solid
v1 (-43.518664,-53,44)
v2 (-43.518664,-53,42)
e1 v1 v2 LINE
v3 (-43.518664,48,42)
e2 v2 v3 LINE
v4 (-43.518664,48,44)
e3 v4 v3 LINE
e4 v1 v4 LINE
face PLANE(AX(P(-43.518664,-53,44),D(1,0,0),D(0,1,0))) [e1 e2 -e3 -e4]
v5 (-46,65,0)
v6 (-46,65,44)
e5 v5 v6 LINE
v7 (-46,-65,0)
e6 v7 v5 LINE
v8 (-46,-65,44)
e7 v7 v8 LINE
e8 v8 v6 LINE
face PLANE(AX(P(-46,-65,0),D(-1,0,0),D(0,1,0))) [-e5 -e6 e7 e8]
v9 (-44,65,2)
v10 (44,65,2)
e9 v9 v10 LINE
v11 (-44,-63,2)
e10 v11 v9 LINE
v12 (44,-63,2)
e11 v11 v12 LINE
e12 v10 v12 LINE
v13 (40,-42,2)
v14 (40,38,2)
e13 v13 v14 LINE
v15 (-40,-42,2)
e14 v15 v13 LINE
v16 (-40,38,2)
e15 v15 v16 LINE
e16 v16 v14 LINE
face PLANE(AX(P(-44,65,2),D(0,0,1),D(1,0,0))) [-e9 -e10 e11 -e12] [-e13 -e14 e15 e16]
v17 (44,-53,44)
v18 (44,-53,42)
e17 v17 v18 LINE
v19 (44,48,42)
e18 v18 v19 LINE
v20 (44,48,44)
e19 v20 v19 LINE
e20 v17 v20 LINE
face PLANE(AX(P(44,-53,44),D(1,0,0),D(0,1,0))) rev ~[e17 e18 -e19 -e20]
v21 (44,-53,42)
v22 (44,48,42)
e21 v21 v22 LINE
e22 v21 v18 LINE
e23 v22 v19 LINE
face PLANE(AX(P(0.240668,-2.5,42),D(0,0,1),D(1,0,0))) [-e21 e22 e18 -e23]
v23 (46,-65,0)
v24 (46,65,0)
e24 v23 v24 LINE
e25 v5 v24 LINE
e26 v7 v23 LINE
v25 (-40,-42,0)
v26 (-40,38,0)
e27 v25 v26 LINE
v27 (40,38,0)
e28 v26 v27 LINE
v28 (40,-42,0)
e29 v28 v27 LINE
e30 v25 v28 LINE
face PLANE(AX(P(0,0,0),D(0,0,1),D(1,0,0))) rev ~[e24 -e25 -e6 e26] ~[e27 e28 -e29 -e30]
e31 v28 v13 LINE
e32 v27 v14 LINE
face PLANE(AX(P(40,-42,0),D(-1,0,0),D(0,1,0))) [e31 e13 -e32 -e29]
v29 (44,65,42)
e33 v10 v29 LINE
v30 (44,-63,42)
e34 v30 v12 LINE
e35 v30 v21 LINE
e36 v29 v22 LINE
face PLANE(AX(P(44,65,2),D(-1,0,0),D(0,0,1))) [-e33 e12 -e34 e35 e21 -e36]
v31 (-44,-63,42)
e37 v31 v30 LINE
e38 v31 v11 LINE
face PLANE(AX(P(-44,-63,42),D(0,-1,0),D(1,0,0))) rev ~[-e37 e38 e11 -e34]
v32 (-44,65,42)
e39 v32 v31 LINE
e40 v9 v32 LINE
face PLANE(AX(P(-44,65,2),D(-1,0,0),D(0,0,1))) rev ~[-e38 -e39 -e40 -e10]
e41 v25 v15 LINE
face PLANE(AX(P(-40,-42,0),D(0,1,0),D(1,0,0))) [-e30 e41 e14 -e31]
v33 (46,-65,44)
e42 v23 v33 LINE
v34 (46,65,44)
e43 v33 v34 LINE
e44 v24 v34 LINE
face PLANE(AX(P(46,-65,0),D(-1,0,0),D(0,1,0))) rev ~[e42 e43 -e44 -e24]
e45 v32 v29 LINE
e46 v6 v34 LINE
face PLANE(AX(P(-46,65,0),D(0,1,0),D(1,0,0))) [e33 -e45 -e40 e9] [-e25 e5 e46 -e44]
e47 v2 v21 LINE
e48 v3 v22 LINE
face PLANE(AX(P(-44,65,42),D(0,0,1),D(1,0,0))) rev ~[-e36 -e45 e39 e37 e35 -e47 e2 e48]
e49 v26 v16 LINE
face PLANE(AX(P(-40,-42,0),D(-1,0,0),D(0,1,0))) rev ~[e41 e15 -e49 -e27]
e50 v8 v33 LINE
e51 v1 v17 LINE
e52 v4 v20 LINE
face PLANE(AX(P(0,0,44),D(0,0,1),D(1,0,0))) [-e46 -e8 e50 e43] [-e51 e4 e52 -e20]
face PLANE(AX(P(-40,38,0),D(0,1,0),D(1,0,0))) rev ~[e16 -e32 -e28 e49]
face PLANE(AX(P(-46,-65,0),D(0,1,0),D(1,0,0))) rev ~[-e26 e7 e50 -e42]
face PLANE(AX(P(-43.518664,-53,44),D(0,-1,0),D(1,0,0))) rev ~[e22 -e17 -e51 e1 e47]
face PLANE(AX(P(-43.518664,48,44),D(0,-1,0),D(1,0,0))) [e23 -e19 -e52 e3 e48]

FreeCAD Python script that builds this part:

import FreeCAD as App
import Part
import Sketcher
from FreeCAD import Vector
Q = App.Units.Quantity

doc = App.newDocument("Part")
body = doc.addObject("PartDesign::Body", "Body")

sketch1 = body.newObject("Sketcher::SketchObject", "Sketch")
sketch1.AttachmentSupport = (doc.getObject("XY_Plane"), [""])
sketch1.MapMode = "FlatFace"
sketch1.addGeometry(Part.LineSegment(Vector(-46, 65, 0), Vector(-46, -65, 0)), False)
sketch1.addGeometry(Part.LineSegment(Vector(-46, -65, 0), Vector(46, -65, 0)), False)
sketch1.addGeometry(Part.LineSegment(Vector(46, -65, 0), Vector(46, 65, 0)), False)
sketch1.addGeometry(Part.LineSegment(Vector(46, 65, 0), Vector(-46, 65, 0)), False)
sketch1.addConstraint(Sketcher.Constraint("Coincident", 0, 2, 1, 1))
sketch1.addConstraint(Sketcher.Constraint("Coincident", 1, 2, 2, 1))
sketch1.addConstraint(Sketcher.Constraint("Coincident", 2, 2, 3, 1))
sketch1.addConstraint(Sketcher.Constraint("Coincident", 3, 2, 0, 1))
sketch1.addConstraint(Sketcher.Constraint("Vertical", 0))
sketch1.addConstraint(Sketcher.Constraint("Horizontal", 1))
sketch1.addConstraint(Sketcher.Constraint("Vertical", 2))
sketch1.addConstraint(Sketcher.Constraint("Horizontal", 3))
sketch1.addConstraint(Sketcher.Constraint("Symmetric", 0, 2, 2, 2, -1, 1))
sketch1.addConstraint(Sketcher.Constraint("DistanceX", 1, 1, 1, 2, Q("92 mm")))
sketch1.addConstraint(Sketcher.Constraint("DistanceY", 0, 2, 0, 1, Q("130 mm")))
pad1 = body.newObject("PartDesign::Pad", "Pad")
pad1.Profile = sketch1
pad1.Length = 44

sketch2 = body.newObject("Sketcher::SketchObject", "Sketch001")
sketch2.AttachmentSupport = (doc.getObject("XY_Plane"), [""])
sketch2.MapMode = "FlatFace"
sketch2.AttachmentOffset = App.Placement(Vector(0, 0, 42), App.Rotation())
sketch2.addGeometry(Part.LineSegment(Vector(-44, 63, 0), Vector(-44, -63, 0)), False)
sketch2.addGeometry(Part.LineSegment(Vector(-44, -63, 0), Vector(44, -63, 0)), False)
sketch2.addGeometry(Part.LineSegment(Vector(44, -63, 0), Vector(44, 63, 0)), False)
sketch2.addGeometry(Part.LineSegment(Vector(44, 63, 0), Vector(-44, 63, 0)), False)
sketch2.addConstraint(Sketcher.Constraint("Coincident", 0, 2, 1, 1))
sketch2.addConstraint(Sketcher.Constraint("Coincident", 1, 2, 2, 1))
sketch2.addConstraint(Sketcher.Constraint("Coincident", 2, 2, 3, 1))
sketch2.addConstraint(Sketcher.Constraint("Coincident", 3, 2, 0, 1))
sketch2.addConstraint(Sketcher.Constraint("Vertical", 0))
sketch2.addConstraint(Sketcher.Constraint("Horizontal", 1))
sketch2.addConstraint(Sketcher.Constraint("Vertical", 2))
sketch2.addConstraint(Sketcher.Constraint("Horizontal", 3))
sketch2.addConstraint(Sketcher.Constraint("Symmetric", 0, 2, 2, 2, -1, 1))
sketch2.addConstraint(Sketcher.Constraint("DistanceX", 1, 1, 1, 2, Q("88 mm")))
sketch2.addConstraint(Sketcher.Constraint("DistanceY", 0, 2, 0, 1, Q("126 mm")))
pocket1 = body.newObject("PartDesign::Pocket", "Pocket")
pocket1.Profile = sketch2
pocket1.Length = 40

sketch3 = body.newObject("Sketcher::SketchObject", "Sketch002")
sketch3.AttachmentSupport = (doc.getObject("XY_Plane"), [""])
sketch3.MapMode = "FlatFace"
sketch3.AttachmentOffset = App.Placement(Vector(0, 0, 44), App.Rotation())
sketch3.addGeometry(Part.LineSegment(Vector(-44, 48, 0), Vector(-44, -53, 0)), False)
sketch3.addGeometry(Part.LineSegment(Vector(-44, -53, 0), Vector(44, -53, 0)), False)
sketch3.addGeometry(Part.LineSegment(Vector(44, -53, 0), Vector(44, 48, 0)), False)
sketch3.addGeometry(Part.LineSegment(Vector(44, 48, 0), Vector(-44, 48, 0)), False)
sketch3.addConstraint(Sketcher.Constraint("Coincident", 0, 2, 1, 1))
sketch3.addConstraint(Sketcher.Constraint("Coincident", 1, 2, 2, 1))
sketch3.addConstraint(Sketcher.Constraint("Coincident", 2, 2, 3, 1))
sketch3.addConstraint(Sketcher.Constraint("Coincident", 3, 2, 0, 1))
sketch3.addConstraint(Sketcher.Constraint("Vertical", 0))
sketch3.addConstraint(Sketcher.Constraint("Horizontal", 1))
sketch3.addConstraint(Sketcher.Constraint("Vertical", 2))
sketch3.addConstraint(Sketcher.Constraint("Horizontal", 3))
sketch3.addConstraint(Sketcher.Constraint("DistanceY", 0, 2, 0, 1, Q("101 mm")))
sketch3.addConstraint(Sketcher.Constraint("DistanceY", 0, 2, -1, 1, Q("53 mm")))
sketch3.addConstraint(Sketcher.Constraint("DistanceX", -1, 1, 1, 2, Q("44 mm")))
sketch3.addConstraint(Sketcher.Constraint("DistanceX", 1, 1, 1, 2, Q("87.518665 mm")))
pocket2 = body.newObject("PartDesign::Pocket", "Pocket001")
pocket2.Profile = sketch3
pocket2.Length = 2

sketch4 = body.newObject("Sketcher::SketchObject", "Sketch003")
sketch4.AttachmentSupport = (doc.getObject("XY_Plane"), [""])
sketch4.MapMode = "FlatFace"
sketch4.addGeometry(Part.LineSegment(Vector(-40, 38, 0), Vector(-40, -42, 0)), False)
sketch4.addGeometry(Part.LineSegment(Vector(-40, -42, 0), Vector(40, -42, 0)), False)
sketch4.addGeometry(Part.LineSegment(Vector(40, -42, 0), Vector(40, 38, 0)), False)
sketch4.addGeometry(Part.LineSegment(Vector(40, 38, 0), Vector(-40, 38, 0)), False)
sketch4.addConstraint(Sketcher.Constraint("Coincident", 0, 2, 1, 1))
sketch4.addConstraint(Sketcher.Constraint("Coincident", 1, 2, 2, 1))
sketch4.addConstraint(Sketcher.Constraint("Coincident", 2, 2, 3, 1))
sketch4.addConstraint(Sketcher.Constraint("Coincident", 3, 2, 0, 1))
sketch4.addConstraint(Sketcher.Constraint("Vertical", 0))
sketch4.addConstraint(Sketcher.Constraint("Horizontal", 1))
sketch4.addConstraint(Sketcher.Constraint("Vertical", 2))
sketch4.addConstraint(Sketcher.Constraint("Horizontal", 3))
sketch4.addConstraint(Sketcher.Constraint("Equal", 3, 0))
sketch4.addConstraint(Sketcher.Constraint("DistanceX", 1, 1, 1, 2, Q("80 mm")))
sketch4.addConstraint(Sketcher.Constraint("DistanceX", 0, 2, -1, 1, Q("40 mm")))
sketch4.addConstraint(Sketcher.Constraint("DistanceY", 0, 2, -1, 1, Q("42 mm")))
pocket3 = body.newObject("PartDesign::Pocket", "Pocket002")
pocket3.Profile = sketch4
pocket3.Length = 2
pocket3.Reversed = True

sketch5 = body.newObject("Sketcher::SketchObject", "Sketch004")
sketch5.AttachmentSupport = (doc.getObject("XZ_Plane"), [""])
sketch5.MapMode = "FlatFace"
sketch5.AttachmentOffset = App.Placement(Vector(0, 0, -65), App.Rotation())
sketch5.addGeometry(Part.LineSegment(Vector(-44, 42, 0), Vector(-44, 2, 0)), False)
sketch5.addGeometry(Part.LineSegment(Vector(-44, 2, 0), Vector(44, 2, 0)), False)
sketch5.addGeometry(Part.LineSegment(Vector(44, 2, 0), Vector(44, 42, 0)), False)
sketch5.addGeometry(Part.LineSegment(Vector(44, 42, 0), Vector(-44, 42, 0)), False)
sketch5.addConstraint(Sketcher.Constraint("Coincident", 0, 2, 1, 1))
sketch5.addConstraint(Sketcher.Constraint("Coincident", 1, 2, 2, 1))
sketch5.addConstraint(Sketcher.Constraint("Coincident", 2, 2, 3, 1))
sketch5.addConstraint(Sketcher.Constraint("Coincident", 3, 2, 0, 1))
sketch5.addConstraint(Sketcher.Constraint("Vertical", 0))
sketch5.addConstraint(Sketcher.Constraint("Horizontal", 1))
sketch5.addConstraint(Sketcher.Constraint("Vertical", 2))
sketch5.addConstraint(Sketcher.Constraint("Horizontal", 3))
sketch5.addConstraint(Sketcher.Constraint("DistanceX", 1, 1, 1, 2, Q("88 mm")))
sketch5.addConstraint(Sketcher.Constraint("DistanceY", 0, 2, 0, 1, Q("40 mm")))
sketch5.addConstraint(Sketcher.Constraint("DistanceX", 0, 2, -1, 1, Q("44 mm")))
sketch5.addConstraint(Sketcher.Constraint("DistanceY", -1, 1, 0, 2, Q("2 mm")))
pocket4 = body.newObject("PartDesign::Pocket", "Pocket003")
pocket4.Profile = sketch5
pocket4.Length = 2
pocket4.Reversed = True

doc.recompute()
